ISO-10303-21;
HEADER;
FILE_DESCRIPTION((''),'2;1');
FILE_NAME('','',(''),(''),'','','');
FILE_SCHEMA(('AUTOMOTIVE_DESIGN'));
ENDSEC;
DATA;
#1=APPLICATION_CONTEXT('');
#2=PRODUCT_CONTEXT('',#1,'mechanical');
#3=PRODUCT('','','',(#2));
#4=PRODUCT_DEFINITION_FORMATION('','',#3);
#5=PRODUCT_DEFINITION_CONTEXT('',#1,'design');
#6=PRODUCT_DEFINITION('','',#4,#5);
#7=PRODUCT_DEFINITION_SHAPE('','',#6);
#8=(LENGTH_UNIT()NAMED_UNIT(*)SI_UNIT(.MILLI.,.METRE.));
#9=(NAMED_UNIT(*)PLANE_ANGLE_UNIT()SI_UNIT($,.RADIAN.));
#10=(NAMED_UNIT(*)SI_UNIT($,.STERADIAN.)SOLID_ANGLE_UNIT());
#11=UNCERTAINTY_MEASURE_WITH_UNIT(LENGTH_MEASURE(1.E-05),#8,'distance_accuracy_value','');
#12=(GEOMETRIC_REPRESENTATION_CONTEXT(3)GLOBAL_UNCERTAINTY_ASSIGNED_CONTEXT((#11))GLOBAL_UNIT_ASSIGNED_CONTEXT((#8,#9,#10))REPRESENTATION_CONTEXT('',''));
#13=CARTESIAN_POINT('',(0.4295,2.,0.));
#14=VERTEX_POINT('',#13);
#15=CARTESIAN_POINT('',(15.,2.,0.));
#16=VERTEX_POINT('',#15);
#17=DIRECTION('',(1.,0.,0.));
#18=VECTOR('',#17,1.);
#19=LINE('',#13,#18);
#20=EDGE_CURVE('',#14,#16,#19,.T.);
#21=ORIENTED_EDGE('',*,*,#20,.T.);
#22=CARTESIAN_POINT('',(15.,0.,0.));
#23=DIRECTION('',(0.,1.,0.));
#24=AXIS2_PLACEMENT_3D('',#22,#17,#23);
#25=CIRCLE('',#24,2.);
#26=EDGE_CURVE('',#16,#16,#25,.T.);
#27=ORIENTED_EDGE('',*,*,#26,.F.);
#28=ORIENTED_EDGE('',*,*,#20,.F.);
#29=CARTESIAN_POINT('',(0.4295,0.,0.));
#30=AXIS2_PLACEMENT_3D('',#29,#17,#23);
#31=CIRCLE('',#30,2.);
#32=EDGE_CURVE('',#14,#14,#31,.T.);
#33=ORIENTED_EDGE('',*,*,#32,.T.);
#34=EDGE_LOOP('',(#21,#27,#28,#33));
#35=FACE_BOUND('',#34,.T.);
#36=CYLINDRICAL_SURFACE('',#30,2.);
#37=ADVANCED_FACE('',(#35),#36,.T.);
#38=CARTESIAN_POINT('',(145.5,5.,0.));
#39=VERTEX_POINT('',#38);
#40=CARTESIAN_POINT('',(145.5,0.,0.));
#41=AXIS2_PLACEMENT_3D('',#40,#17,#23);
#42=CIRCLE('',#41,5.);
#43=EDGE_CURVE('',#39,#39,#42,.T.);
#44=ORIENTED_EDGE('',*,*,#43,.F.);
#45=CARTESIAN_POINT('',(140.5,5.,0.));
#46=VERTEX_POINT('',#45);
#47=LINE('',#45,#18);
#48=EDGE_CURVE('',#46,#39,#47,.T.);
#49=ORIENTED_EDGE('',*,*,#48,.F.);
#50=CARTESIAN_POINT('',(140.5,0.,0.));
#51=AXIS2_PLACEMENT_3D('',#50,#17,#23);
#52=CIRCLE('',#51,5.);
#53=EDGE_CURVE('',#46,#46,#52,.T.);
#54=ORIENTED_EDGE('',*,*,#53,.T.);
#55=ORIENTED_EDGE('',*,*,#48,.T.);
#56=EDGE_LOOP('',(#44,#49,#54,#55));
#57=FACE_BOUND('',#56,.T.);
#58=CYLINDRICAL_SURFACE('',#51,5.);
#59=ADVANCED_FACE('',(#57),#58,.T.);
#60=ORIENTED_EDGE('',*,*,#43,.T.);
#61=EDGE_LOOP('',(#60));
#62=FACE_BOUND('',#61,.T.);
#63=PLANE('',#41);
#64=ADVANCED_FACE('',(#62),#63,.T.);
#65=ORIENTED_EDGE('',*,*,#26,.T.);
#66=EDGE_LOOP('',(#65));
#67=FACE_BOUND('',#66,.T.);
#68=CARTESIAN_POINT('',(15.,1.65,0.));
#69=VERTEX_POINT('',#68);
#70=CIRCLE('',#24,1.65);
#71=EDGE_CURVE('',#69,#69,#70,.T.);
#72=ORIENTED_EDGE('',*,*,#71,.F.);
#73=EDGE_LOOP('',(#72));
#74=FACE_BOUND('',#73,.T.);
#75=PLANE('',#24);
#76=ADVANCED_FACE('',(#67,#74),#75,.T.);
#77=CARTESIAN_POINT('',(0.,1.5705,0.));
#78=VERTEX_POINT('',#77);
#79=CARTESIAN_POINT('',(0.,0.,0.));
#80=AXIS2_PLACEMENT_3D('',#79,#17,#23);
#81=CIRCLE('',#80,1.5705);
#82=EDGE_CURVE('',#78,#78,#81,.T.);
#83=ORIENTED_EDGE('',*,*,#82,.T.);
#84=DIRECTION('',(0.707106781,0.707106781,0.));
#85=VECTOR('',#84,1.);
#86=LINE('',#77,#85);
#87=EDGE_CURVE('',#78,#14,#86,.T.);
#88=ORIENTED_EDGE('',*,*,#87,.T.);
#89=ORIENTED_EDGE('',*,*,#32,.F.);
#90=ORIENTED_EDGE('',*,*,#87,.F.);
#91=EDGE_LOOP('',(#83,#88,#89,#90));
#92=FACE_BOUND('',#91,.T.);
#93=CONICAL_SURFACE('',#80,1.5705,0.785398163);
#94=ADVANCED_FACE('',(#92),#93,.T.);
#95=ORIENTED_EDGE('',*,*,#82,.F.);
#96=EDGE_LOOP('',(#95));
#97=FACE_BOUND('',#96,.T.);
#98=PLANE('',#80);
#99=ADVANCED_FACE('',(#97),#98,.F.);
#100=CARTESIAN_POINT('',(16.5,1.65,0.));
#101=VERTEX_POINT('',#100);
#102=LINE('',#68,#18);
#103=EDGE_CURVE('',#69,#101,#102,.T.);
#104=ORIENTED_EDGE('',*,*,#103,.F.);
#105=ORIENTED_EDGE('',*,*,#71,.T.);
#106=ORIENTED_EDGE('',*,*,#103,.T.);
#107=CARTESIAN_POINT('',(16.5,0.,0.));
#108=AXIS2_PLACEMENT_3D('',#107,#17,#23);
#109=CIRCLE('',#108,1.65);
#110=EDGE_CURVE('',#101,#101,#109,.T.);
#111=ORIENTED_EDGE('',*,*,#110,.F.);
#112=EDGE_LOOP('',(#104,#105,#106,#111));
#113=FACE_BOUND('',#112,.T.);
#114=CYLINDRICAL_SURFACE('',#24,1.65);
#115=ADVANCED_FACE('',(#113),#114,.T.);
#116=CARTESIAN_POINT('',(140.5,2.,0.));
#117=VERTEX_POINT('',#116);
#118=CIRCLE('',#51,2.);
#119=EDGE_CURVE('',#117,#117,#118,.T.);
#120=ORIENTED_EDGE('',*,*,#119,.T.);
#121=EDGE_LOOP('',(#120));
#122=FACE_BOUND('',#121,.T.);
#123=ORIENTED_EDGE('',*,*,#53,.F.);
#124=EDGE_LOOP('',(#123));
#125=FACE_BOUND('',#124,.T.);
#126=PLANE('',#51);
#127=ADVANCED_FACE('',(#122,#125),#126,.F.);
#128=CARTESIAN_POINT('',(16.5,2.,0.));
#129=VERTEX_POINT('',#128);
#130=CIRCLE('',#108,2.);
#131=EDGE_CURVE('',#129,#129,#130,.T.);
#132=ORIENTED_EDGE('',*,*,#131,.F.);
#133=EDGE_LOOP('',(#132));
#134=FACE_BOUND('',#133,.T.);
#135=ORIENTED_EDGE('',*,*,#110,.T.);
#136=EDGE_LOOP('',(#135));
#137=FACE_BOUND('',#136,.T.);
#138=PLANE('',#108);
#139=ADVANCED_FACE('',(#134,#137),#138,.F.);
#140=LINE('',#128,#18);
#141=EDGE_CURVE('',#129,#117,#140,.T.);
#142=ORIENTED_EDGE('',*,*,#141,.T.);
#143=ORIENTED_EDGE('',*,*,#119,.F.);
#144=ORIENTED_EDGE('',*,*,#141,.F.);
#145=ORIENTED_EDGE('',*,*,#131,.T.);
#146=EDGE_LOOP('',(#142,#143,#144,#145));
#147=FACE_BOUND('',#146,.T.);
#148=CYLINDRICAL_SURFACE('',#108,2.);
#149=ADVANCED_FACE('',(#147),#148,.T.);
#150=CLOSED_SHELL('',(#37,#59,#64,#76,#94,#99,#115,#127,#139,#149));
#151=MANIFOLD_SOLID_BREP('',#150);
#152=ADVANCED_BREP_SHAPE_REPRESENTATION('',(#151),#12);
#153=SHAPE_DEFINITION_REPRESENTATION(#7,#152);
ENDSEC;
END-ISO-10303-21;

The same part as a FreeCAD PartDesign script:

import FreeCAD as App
import Part
import Sketcher
Q = App.Units.Quantity


def add_polygon(sketch, points):
    """Adds a closed chain of lines whose ends are joined by coincident constraints."""
    first, n = sketch.GeometryCount, len(points)
    for a, b in zip(points, points[1:] + points[:1]):
        sketch.addGeometry(Part.LineSegment(App.Vector(*a, 0), App.Vector(*b, 0)), False)
    for i in range(n):
        sketch.addConstraint(Sketcher.Constraint("Coincident", first + i, 2, first + (i + 1) % n, 1))

doc = App.newDocument("Part")
body = doc.addObject("PartDesign::Body", "Body")

# Sketch on XY plane
sketch1 = doc.addObject("Sketcher::SketchObject", "Sketch")
body.addObject(sketch1)
sketch1.AttachmentSupport = (doc.XY_Plane, [""])
sketch1.MapMode = "FlatFace"
add_polygon(sketch1, [(0, 0), (145.5, 0), (145.5, 5), (140.5, 5), (140.5, 2), (16.5, 2), (16.5, 1.65), (15, 1.65), (15, 2), (0.43, 2), (0, 1.57)])  # lines 0-10
sketch1.addConstraint(Sketcher.Constraint("Horizontal", 0))
sketch1.addConstraint(Sketcher.Constraint("Vertical", 1))
sketch1.addConstraint(Sketcher.Constraint("Horizontal", 2))
sketch1.addConstraint(Sketcher.Constraint("Vertical", 3))
sketch1.addConstraint(Sketcher.Constraint("Horizontal", 4))
sketch1.addConstraint(Sketcher.Constraint("Vertical", 5))
sketch1.addConstraint(Sketcher.Constraint("Horizontal", 6))
sketch1.addConstraint(Sketcher.Constraint("Vertical", 7))
sketch1.addConstraint(Sketcher.Constraint("Horizontal", 8))
sketch1.addConstraint(Sketcher.Constraint("Vertical", 10))
sketch1.addConstraint(Sketcher.Constraint("Coincident", 10, 2, -1, 1))
sketch1.addConstraint(Sketcher.Constraint("Horizontal", 4, 2, 7, 2))
sketch1.addConstraint(Sketcher.Constraint("Equal", 2, 1))
sketch1.addConstraint(Sketcher.Constraint("DistanceX", 2, 2, 2, 1, 5.0))
sketch1.addConstraint(Sketcher.Constraint("DistanceX", 4, 2, 4, 1, 124.0))
sketch1.addConstraint(Sketcher.Constraint("DistanceY", 3, 2, 3, 1, 3.0))
sketch1.addConstraint(Sketcher.Constraint("Angle", 9, Q("-135 deg")))
sketch1.addConstraint(Sketcher.Constraint("DistanceX", 0, 1, 0, 2, 145.5))
sketch1.addConstraint(Sketcher.Constraint("DistanceX", 6, 2, 6, 1, 1.5))
sketch1.addConstraint(Sketcher.Constraint("DistanceY", 5, 2, 5, 1, 0.35))
sketch1.addConstraint(Sketcher.Constraint("DistanceX", 8, 2, 8, 1, 14.5705))
revolution = doc.addObject("PartDesign::Revolution", "Revolution")
body.addObject(revolution)
revolution.Profile = sketch1
revolution.ReferenceAxis = (sketch1, ["H_Axis"])
revolution.Angle = 360

doc.recompute()
